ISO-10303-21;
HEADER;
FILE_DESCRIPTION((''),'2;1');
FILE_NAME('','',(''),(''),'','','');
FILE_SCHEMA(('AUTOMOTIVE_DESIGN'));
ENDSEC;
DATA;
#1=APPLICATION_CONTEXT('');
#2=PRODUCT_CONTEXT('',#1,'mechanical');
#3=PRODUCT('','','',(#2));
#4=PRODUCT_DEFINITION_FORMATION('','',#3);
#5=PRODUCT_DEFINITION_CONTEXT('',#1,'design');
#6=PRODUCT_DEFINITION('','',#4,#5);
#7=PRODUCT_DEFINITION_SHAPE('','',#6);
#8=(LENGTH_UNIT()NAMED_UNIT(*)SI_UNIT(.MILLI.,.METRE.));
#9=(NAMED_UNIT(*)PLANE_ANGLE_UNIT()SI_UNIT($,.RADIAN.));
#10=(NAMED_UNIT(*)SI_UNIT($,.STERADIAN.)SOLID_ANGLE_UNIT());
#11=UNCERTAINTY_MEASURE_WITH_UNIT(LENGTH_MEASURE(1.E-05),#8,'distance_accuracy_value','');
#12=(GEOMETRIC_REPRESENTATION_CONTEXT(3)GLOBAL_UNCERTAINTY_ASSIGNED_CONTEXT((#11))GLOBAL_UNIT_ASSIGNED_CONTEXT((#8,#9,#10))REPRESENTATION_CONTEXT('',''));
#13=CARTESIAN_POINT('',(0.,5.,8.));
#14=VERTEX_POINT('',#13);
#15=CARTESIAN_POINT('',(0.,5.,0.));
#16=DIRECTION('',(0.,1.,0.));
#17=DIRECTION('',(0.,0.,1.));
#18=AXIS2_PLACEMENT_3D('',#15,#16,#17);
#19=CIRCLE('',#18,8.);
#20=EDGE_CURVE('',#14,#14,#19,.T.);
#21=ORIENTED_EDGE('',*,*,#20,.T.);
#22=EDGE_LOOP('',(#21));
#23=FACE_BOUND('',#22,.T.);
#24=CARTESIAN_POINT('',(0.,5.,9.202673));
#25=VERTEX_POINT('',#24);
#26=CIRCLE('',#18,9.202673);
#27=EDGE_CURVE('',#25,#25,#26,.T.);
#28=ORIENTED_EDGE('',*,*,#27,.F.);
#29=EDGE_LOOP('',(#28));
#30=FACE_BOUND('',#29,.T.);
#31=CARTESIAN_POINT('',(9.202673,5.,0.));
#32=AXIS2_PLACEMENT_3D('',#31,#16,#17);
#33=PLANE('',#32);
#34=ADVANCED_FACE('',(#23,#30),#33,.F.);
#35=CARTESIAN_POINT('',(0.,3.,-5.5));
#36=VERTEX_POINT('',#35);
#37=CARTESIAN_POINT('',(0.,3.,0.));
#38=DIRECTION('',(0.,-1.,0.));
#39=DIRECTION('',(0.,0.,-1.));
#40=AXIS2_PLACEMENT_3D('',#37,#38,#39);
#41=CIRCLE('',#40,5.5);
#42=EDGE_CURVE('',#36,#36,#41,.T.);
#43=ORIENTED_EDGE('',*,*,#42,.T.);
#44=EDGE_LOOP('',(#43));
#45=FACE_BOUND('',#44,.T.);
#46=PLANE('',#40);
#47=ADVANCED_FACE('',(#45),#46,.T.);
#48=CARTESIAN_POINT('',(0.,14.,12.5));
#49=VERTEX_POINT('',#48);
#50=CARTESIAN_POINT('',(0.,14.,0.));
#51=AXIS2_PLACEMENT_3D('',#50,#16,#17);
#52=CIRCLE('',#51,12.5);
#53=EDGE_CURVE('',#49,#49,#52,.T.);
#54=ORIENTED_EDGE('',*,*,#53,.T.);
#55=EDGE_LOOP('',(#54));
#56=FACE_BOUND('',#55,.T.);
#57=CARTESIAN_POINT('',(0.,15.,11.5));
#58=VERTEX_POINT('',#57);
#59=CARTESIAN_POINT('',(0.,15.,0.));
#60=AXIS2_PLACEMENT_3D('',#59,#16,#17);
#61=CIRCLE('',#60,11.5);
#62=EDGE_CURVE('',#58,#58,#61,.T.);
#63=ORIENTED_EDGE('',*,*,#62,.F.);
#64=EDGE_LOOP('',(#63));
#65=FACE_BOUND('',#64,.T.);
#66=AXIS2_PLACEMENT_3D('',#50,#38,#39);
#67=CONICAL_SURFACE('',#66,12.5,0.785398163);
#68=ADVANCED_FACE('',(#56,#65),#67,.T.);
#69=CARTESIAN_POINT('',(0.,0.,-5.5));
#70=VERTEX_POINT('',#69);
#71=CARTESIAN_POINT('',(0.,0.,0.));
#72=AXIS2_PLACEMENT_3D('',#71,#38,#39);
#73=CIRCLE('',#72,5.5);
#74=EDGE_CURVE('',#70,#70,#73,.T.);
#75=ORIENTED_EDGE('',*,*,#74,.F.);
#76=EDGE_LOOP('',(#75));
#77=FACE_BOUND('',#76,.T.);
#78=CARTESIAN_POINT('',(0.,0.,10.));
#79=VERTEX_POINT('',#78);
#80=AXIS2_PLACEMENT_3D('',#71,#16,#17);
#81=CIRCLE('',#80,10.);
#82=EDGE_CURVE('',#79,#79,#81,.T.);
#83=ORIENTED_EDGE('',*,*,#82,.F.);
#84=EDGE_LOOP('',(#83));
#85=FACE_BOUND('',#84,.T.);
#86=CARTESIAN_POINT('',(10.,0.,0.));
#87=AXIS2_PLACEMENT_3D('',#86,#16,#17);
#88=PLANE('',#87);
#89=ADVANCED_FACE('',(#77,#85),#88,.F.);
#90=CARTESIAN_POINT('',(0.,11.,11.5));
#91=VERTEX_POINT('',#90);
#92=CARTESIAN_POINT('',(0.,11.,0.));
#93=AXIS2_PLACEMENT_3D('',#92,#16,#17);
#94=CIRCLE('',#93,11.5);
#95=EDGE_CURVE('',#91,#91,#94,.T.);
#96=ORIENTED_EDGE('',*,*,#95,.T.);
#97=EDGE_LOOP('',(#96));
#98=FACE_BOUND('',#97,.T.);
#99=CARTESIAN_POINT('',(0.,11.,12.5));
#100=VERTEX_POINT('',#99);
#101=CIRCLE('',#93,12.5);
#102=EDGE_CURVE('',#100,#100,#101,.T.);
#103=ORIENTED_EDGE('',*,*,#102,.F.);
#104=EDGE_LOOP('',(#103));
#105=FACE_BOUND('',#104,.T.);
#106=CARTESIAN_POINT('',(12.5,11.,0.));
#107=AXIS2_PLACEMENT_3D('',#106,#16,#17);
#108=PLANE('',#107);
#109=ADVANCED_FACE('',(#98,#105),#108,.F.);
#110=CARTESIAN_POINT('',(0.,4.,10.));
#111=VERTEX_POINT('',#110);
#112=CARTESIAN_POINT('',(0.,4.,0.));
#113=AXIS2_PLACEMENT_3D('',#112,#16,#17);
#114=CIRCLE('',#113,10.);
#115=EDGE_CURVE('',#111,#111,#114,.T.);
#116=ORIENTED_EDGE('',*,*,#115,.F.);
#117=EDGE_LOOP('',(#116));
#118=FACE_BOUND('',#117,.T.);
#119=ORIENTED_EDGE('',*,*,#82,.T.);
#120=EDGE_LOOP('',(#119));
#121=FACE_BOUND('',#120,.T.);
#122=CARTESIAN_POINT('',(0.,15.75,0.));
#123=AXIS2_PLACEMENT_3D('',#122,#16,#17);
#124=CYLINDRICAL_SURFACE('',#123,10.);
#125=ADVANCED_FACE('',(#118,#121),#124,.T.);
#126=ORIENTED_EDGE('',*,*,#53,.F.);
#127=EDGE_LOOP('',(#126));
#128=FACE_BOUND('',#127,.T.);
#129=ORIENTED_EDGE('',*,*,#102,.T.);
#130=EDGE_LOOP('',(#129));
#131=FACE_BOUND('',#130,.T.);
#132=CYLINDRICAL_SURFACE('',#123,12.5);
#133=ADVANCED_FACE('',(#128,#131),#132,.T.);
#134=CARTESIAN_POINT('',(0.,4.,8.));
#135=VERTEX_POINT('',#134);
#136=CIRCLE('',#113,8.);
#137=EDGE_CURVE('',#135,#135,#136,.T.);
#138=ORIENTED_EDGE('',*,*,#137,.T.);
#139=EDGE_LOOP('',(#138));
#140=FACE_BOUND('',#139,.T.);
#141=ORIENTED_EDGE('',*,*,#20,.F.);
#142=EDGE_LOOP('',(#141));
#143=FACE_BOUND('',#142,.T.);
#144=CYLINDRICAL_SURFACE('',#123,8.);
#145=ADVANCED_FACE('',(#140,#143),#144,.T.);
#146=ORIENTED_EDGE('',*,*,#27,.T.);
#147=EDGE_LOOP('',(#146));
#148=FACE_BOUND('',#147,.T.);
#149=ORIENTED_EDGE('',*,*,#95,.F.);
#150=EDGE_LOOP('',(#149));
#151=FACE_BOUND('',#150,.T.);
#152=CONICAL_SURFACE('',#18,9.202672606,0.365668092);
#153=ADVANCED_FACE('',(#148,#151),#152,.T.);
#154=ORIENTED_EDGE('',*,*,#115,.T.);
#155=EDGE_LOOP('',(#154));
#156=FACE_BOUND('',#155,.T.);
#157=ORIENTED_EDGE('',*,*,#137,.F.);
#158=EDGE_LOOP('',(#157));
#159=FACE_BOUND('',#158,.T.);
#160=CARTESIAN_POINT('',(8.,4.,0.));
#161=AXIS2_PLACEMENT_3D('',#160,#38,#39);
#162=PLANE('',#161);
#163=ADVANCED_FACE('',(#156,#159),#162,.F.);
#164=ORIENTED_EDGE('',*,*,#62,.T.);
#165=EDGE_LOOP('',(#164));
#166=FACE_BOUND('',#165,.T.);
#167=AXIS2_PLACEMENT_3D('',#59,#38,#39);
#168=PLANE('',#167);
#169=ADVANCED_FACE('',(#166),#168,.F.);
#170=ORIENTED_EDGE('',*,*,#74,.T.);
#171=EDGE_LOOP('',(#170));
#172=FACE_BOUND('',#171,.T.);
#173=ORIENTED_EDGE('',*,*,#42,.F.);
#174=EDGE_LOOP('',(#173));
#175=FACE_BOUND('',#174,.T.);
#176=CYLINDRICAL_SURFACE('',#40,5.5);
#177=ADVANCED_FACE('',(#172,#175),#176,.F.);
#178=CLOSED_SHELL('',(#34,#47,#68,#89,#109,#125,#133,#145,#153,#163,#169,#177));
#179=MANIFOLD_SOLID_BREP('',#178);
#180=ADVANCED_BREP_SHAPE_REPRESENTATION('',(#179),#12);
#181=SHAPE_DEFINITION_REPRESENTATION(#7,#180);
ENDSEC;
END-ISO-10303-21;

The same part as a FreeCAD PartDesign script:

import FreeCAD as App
import Part
import Sketcher

V = App.Vector
Q = App.Units.Quantity

doc = App.newDocument("Part")
params = doc.addObject("Spreadsheet::Sheet", "Params")
for row, (alias, value) in enumerate([
    ("sketch1_width", "10 mm"),
    ("sketch1_width2", "2 mm"),
    ("sketch1_width3", "1 mm"),
    ("sketch1_height", "15 mm"),
    ("sketch1_height2", "4 mm"),
    ("revolution_angle", "360 deg"),
    ("sketch2_diameter", "11 mm"),
    ("pocket1_length", "3 mm"),
], start=1):
    params.set(f"A{row}", alias)
    params.set(f"B{row}", "=" + value)
    params.setAlias(f"B{row}", alias)

body = doc.addObject("PartDesign::Body", "Body")

# Sketch on XY plane
sketch1 = doc.addObject("Sketcher::SketchObject", "Sketch")
body.addObject(sketch1)
sketch1.AttachmentSupport = (doc.XY_Plane, [""])
sketch1.MapMode = "FlatFace"
sketch1.addGeometry(Part.LineSegment(V(0, 15, 0), V(0, 0, 0)), False)
sketch1.addGeometry(Part.LineSegment(V(0, 0, 0), V(10, 0, 0)), False)
sketch1.addGeometry(Part.LineSegment(V(10, 0, 0), V(10, 4, 0)), False)
sketch1.addGeometry(Part.LineSegment(V(10, 4, 0), V(8, 4, 0)), False)
sketch1.addGeometry(Part.LineSegment(V(8, 4, 0), V(8, 5, 0)), False)
sketch1.addGeometry(Part.LineSegment(V(8, 5, 0), V(9.2, 5, 0)), False)
sketch1.addGeometry(Part.LineSegment(V(9.2, 5, 0), V(11.5, 11, 0)), False)
sketch1.addGeometry(Part.LineSegment(V(11.5, 11, 0), V(12.5, 11, 0)), False)
sketch1.addGeometry(Part.LineSegment(V(12.5, 11, 0), V(12.5, 14, 0)), False)
sketch1.addGeometry(Part.LineSegment(V(12.5, 14, 0), V(11.5, 15, 0)), False)
sketch1.addGeometry(Part.LineSegment(V(11.5, 15, 0), V(0, 15, 0)), False)
sketch1.addConstraint(Sketcher.Constraint("Coincident", 0, 2, 1, 1))
sketch1.addConstraint(Sketcher.Constraint("Coincident", 1, 2, 2, 1))
sketch1.addConstraint(Sketcher.Constraint("Coincident", 2, 2, 3, 1))
sketch1.addConstraint(Sketcher.Constraint("Coincident", 3, 2, 4, 1))
sketch1.addConstraint(Sketcher.Constraint("Coincident", 4, 2, 5, 1))
sketch1.addConstraint(Sketcher.Constraint("Coincident", 5, 2, 6, 1))
sketch1.addConstraint(Sketcher.Constraint("Coincident", 6, 2, 7, 1))
sketch1.addConstraint(Sketcher.Constraint("Coincident", 7, 2, 8, 1))
sketch1.addConstraint(Sketcher.Constraint("Coincident", 8, 2, 9, 1))
sketch1.addConstraint(Sketcher.Constraint("Coincident", 9, 2, 10, 1))
sketch1.addConstraint(Sketcher.Constraint("Coincident", 10, 2, 0, 1))
sketch1.addConstraint(Sketcher.Constraint("Vertical", 0))
sketch1.addConstraint(Sketcher.Constraint("Horizontal", 1))
sketch1.addConstraint(Sketcher.Constraint("Vertical", 2))
sketch1.addConstraint(Sketcher.Constraint("Horizontal", 3))
sketch1.addConstraint(Sketcher.Constraint("Vertical", 4))
sketch1.addConstraint(Sketcher.Constraint("Horizontal", 5))
sketch1.addConstraint(Sketcher.Constraint("Horizontal", 7))
sketch1.addConstraint(Sketcher.Constraint("Vertical", 8))
sketch1.addConstraint(Sketcher.Constraint("Horizontal", 10))
sketch1.addConstraint(Sketcher.Constraint("Coincident", 0, 2, -1, 1))
sketch1.addConstraint(Sketcher.Constraint("Vertical", 6, 2, 9, 2))
sketch1.addConstraint(Sketcher.Constraint("Equal", 7, 4))
sketch1.addConstraint(Sketcher.Constraint("DistanceX", 1, 1, 1, 2, Q("10 mm")))
sketch1.addConstraint(Sketcher.Constraint("DistanceX", 3, 2, 3, 1, Q("2 mm")))
sketch1.addConstraint(Sketcher.Constraint("DistanceX", 7, 1, 7, 2, Q("1 mm")))
sketch1.addConstraint(Sketcher.Constraint("DistanceY", 0, 2, 0, 1, Q("15 mm")))
sketch1.addConstraint(Sketcher.Constraint("DistanceY", 2, 1, 2, 2, Q("4 mm")))
sketch1.addConstraint(Sketcher.Constraint("DistanceY", 8, 1, 8, 2, Q("3 mm")))
sketch1.addConstraint(Sketcher.Constraint("Angle", 9, Q("135 deg")))
sketch1.addConstraint(Sketcher.Constraint("DistanceX", 10, 2, 10, 1, Q("11.5 mm")))
sketch1.addConstraint(Sketcher.Constraint("DistanceX", 5, 1, 5, 2, Q("1.202673 mm")))
sketch1.setExpression("Constraints[23]", "Params.sketch1_width")
sketch1.setExpression("Constraints[24]", "Params.sketch1_width2")
sketch1.setExpression("Constraints[25]", "Params.sketch1_width3")
sketch1.setExpression("Constraints[26]", "Params.sketch1_height")
sketch1.setExpression("Constraints[27]", "Params.sketch1_height2")
revolution = doc.addObject("PartDesign::Revolution", "Revolution")
body.addObject(revolution)
revolution.Profile = sketch1
revolution.ReferenceAxis = (sketch1, ["V_Axis"])
revolution.setExpression("Angle", "Params.revolution_angle")

# Sketch on XZ plane
sketch2 = doc.addObject("Sketcher::SketchObject", "Sketch001")
body.addObject(sketch2)
sketch2.AttachmentSupport = (doc.XZ_Plane, [""])
sketch2.MapMode = "FlatFace"
sketch2.addGeometry(Part.Circle(V(0, 0, 0), V(0, 0, 1), 6), False)
sketch2.addConstraint(Sketcher.Constraint("Coincident", 0, 3, -1, 1))
sketch2.addConstraint(Sketcher.Constraint("Diameter", 0, Q("11 mm")))
sketch2.setExpression("Constraints[1]", "Params.sketch2_diameter")
pocket1 = doc.addObject("PartDesign::Pocket", "Pocket")
body.addObject(pocket1)
pocket1.Profile = sketch2
pocket1.setExpression("Length", "Params.pocket1_length")

doc.recompute()
